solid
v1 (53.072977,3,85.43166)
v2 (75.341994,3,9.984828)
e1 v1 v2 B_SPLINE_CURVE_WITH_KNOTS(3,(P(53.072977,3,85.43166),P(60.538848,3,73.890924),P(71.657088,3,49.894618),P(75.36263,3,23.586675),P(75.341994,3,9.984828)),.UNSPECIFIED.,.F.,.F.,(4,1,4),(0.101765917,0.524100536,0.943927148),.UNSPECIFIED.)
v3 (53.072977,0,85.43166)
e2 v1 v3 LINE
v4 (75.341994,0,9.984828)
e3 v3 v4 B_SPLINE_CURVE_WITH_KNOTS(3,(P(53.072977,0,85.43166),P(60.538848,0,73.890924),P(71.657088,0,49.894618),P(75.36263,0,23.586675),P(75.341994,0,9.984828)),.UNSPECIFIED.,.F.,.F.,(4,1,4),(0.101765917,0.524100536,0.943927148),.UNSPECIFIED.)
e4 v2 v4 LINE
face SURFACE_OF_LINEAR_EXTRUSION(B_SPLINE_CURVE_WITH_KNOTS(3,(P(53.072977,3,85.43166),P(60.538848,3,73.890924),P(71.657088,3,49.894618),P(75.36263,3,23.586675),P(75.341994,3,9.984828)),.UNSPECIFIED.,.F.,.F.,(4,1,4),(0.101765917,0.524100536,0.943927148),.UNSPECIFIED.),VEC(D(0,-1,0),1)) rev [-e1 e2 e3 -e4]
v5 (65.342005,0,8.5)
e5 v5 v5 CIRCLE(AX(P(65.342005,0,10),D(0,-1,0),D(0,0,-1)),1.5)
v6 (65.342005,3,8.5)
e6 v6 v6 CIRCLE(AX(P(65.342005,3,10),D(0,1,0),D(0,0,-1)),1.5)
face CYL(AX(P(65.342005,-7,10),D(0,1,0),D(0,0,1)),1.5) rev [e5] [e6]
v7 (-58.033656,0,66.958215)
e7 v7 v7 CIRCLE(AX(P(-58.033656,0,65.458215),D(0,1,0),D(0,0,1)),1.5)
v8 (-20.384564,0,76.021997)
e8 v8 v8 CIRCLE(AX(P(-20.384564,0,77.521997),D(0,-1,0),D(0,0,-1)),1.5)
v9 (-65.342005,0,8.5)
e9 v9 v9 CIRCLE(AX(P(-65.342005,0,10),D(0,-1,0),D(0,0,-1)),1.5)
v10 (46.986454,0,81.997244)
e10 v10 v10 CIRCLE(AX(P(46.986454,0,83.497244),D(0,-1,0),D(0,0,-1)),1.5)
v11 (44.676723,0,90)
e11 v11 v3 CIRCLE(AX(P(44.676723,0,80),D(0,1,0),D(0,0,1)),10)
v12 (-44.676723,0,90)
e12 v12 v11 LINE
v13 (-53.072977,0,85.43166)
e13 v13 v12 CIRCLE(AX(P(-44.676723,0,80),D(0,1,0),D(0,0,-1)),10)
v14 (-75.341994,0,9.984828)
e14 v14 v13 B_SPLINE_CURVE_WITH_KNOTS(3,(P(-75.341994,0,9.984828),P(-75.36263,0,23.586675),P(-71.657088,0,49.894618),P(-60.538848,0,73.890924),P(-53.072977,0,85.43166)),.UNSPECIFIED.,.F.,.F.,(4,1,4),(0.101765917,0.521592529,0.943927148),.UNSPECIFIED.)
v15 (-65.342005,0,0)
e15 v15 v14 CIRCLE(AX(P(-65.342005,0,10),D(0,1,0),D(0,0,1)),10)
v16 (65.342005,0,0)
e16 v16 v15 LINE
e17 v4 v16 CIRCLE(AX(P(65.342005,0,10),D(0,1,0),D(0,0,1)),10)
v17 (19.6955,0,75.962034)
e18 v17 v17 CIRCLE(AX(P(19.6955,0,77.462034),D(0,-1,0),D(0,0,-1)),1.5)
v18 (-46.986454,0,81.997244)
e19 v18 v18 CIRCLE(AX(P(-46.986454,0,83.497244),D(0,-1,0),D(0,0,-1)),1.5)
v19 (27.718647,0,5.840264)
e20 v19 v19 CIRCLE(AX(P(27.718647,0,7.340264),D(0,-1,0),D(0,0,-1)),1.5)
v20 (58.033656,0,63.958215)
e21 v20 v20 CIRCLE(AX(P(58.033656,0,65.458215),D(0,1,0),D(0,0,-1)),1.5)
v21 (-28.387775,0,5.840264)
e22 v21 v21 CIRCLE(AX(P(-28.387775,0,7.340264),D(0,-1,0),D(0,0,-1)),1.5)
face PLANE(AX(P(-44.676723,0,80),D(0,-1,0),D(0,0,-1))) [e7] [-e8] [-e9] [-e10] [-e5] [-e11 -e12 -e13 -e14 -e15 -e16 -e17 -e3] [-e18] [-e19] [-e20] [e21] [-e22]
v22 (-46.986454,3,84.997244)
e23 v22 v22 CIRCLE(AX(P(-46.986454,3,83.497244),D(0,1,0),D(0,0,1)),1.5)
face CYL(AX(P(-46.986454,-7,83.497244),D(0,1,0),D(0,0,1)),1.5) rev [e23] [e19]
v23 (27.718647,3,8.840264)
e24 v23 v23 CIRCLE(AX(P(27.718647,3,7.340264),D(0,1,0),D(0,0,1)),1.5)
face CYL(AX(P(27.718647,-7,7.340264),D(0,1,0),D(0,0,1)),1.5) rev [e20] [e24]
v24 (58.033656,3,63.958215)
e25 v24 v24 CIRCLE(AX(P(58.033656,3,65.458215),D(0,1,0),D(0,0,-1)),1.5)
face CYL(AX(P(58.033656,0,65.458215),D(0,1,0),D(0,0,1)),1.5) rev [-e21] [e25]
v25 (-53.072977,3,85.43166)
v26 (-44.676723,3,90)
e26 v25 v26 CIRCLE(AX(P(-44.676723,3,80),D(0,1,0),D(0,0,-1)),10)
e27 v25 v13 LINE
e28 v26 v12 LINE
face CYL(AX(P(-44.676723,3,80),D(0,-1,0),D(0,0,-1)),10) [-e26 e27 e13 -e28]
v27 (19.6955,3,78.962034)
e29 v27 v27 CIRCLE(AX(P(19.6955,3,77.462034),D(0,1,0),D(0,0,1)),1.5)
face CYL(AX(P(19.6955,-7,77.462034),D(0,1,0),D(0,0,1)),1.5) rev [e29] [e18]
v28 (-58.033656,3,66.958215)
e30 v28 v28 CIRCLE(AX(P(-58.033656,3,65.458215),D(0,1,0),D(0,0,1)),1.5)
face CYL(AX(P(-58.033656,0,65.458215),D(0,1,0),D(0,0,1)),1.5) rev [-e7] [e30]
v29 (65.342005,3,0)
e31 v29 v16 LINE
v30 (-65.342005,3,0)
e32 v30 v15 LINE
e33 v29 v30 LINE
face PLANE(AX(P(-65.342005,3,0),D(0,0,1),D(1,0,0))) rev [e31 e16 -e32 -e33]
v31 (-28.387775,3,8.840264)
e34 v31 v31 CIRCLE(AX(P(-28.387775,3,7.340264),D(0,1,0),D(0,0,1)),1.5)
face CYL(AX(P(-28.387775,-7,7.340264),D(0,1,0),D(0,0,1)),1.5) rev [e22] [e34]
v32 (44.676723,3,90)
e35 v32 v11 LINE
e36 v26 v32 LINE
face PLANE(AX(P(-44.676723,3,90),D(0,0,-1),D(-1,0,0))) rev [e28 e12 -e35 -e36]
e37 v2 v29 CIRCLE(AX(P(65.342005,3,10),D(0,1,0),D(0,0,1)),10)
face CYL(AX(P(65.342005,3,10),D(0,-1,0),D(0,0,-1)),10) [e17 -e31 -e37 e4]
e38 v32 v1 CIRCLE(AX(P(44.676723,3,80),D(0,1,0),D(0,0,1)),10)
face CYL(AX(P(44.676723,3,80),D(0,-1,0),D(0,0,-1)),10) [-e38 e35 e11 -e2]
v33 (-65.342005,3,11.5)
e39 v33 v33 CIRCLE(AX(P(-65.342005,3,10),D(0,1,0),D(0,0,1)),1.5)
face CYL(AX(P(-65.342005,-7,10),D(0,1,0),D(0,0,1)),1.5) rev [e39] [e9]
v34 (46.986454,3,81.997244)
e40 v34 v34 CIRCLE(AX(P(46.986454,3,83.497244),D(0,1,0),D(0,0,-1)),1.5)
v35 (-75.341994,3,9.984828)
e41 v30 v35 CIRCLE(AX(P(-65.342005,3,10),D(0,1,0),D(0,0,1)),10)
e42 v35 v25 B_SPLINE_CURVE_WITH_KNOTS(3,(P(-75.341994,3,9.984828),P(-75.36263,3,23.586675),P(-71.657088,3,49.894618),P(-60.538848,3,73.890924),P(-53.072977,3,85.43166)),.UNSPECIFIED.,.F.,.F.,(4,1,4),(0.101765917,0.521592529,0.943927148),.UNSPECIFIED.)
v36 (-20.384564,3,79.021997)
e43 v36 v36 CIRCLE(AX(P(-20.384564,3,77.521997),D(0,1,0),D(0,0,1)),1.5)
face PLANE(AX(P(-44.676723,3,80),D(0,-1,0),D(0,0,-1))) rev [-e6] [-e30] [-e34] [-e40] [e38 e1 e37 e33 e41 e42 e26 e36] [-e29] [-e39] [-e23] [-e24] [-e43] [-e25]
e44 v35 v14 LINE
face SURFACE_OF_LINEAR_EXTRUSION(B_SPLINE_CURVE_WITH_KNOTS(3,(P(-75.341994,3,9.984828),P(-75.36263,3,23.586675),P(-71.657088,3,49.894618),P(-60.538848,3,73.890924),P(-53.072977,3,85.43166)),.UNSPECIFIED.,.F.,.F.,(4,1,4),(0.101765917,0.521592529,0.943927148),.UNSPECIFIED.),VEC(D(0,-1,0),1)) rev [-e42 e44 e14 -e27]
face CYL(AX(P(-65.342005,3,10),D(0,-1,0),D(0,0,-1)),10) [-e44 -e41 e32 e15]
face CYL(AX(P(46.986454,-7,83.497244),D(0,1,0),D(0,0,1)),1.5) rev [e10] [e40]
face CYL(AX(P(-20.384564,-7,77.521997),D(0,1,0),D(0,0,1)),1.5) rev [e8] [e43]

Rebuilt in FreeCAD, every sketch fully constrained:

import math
import FreeCAD as App
import Part
import Sketcher

doc = App.newDocument("Part")
params = doc.addObject("Spreadsheet::Sheet", "Params")
for row, (alias, value) in enumerate([
    ("sketch1_radius", "10 mm"),
    ("pad1_length", "3 mm"),
    ("sketch2_diameter", "3 mm"),
    ("pocket1_length", "10 mm"),
    ("sketch3_diameter", "3 mm"),
    ("pocket2_length", "10 mm"),
    ("sketch4_diameter", "3 mm"),
    ("pocket3_length", "3 mm"),
], start=1):
    params.set(f"A{row}", alias)
    params.set(f"B{row}", "=" + value)
    params.setAlias(f"B{row}", alias)

body = doc.addObject("PartDesign::Body", "Body")

# Sketch on XZ plane
sketch1 = body.newObject("Sketcher::SketchObject", "Sketch")
sketch1.AttachmentSupport = (doc.getObject("XZ_Plane"), [""])
sketch1.MapMode = "FlatFace"
sketch1.addGeometry(Part.LineSegment(App.Vector(65.342005, 0, 0), App.Vector(-65.342005, 0, 0)), False)
sketch1.addGeometry(Part.ArcOfCircle(Part.Circle(App.Vector(-65.342005, 10, 0), App.Vector(0, 0, 1), 10), math.radians(-179.913073), math.radians(-90)), False)
sketch1.addGeometry(Part.BSplineCurve([App.Vector(-75.341994, 9.984828, 0), App.Vector(-75.36263, 23.586675, 0), App.Vector(-71.657088, 49.894618, 0), App.Vector(-60.538848, 73.890924, 0), App.Vector(-53.072977, 85.43166, 0)], [4, 1, 4], [0.101765917, 0.521592529, 0.943927148], False, 3, [1, 1, 1, 1, 1], False), False)
sketch1.addGeometry(Part.ArcOfCircle(Part.Circle(App.Vector(-44.676723, 80, 0), App.Vector(0, 0, 1), 10), math.radians(90), math.radians(147.100579)), False)
sketch1.addGeometry(Part.LineSegment(App.Vector(-44.676723, 90, 0), App.Vector(44.676723, 90, 0)), False)
sketch1.addGeometry(Part.ArcOfCircle(Part.Circle(App.Vector(44.676723, 80, 0), App.Vector(0, 0, 1), 10), math.radians(32.899421), math.radians(90)), False)
sketch1.addGeometry(Part.BSplineCurve([App.Vector(75.341994, 9.984828, 0), App.Vector(75.36263, 23.586675, 0), App.Vector(71.657088, 49.894618, 0), App.Vector(60.538848, 73.890924, 0), App.Vector(53.072977, 85.43166, 0)], [4, 1, 4], [0.101765917, 0.521592529, 0.943927148], False, 3, [1, 1, 1, 1, 1], False), False)
sketch1.addGeometry(Part.ArcOfCircle(Part.Circle(App.Vector(65.342005, 10, 0), App.Vector(0, 0, 1), 10), math.radians(-90), math.radians(-0.086927)), False)
sketch1.addConstraint(Sketcher.Constraint("Block", 2))
sketch1.addConstraint(Sketcher.Constraint("Block", 6))
sketch1.addConstraint(Sketcher.Constraint("Tangent", 0, 2, 1, 2))
sketch1.addConstraint(Sketcher.Constraint("Coincident", 1, 1, 2, 1))
sketch1.addConstraint(Sketcher.Constraint("Coincident", 2, 2, 3, 2))
sketch1.addConstraint(Sketcher.Constraint("Tangent", 3, 1, 4, 1))
sketch1.addConstraint(Sketcher.Constraint("Tangent", 4, 2, 5, 2))
sketch1.addConstraint(Sketcher.Constraint("Coincident", 5, 1, 6, 2))
sketch1.addConstraint(Sketcher.Constraint("Coincident", 6, 1, 7, 2))
sketch1.addConstraint(Sketcher.Constraint("Tangent", 7, 1, 0, 1))
sketch1.addConstraint(Sketcher.Constraint("Horizontal", 0))
sketch1.addConstraint(Sketcher.Constraint("Horizontal", 4))
sketch1.addConstraint(Sketcher.Constraint("Equal", 1, 3))
sketch1.addConstraint(Sketcher.Constraint("Equal", 3, 5))
sketch1.addConstraint(Sketcher.Constraint("Equal", 5, 7))
sketch1.addConstraint(Sketcher.Constraint("PointOnObject", 0, 2, -1))
sketch1.addConstraint(Sketcher.Constraint("Radius", 1, 10.0))
sketch1.addConstraint(Sketcher.Constraint("DistanceY", -1, 1, 3, 3, 80.0))
sketch1.setExpression("Constraints[16]", "Params.sketch1_radius")
pad1 = body.newObject("PartDesign::Pad", "Pad")
pad1.Profile = sketch1
pad1.setExpression("Length", "Params.pad1_length")
pad1.Reversed = True

# Sketch on XZ plane
sketch2 = body.newObject("Sketcher::SketchObject", "Sketch001")
sketch2.AttachmentSupport = (doc.getObject("XZ_Plane"), [""])
sketch2.MapMode = "FlatFace"
sketch2.AttachmentOffset = App.Placement(App.Vector(0, 0, -3), App.Rotation())
sketch2.addGeometry(Part.Circle(App.Vector(-65.342005, 10, 0), App.Vector(0, 0, 1), 1.5), False)
sketch2.addGeometry(Part.Circle(App.Vector(-46.986454, 83.497244, 0), App.Vector(0, 0, 1), 1.5), False)
sketch2.addGeometry(Part.Circle(App.Vector(46.986454, 83.497244, 0), App.Vector(0, 0, 1), 1.5), False)
sketch2.addGeometry(Part.Circle(App.Vector(65.342005, 10, 0), App.Vector(0, 0, 1), 1.5), False)
sketch2.addConstraint(Sketcher.Constraint("Equal", 0, 1))
sketch2.addConstraint(Sketcher.Constraint("Equal", 1, 2))
sketch2.addConstraint(Sketcher.Constraint("Equal", 2, 3))
sketch2.addConstraint(Sketcher.Constraint("Symmetric", 1, 3, 2, 3, -2))
sketch2.addConstraint(Sketcher.Constraint("Symmetric", 0, 3, 3, 3, -2))
sketch2.addConstraint(Sketcher.Constraint("Diameter", 0, 3.0))
sketch2.addConstraint(Sketcher.Constraint("DistanceY", -1, 1, 0, 3, 10.0))
sketch2.addConstraint(Sketcher.Constraint("DistanceX", 0, 3, 1, 3, 18.355551))
sketch2.addConstraint(Sketcher.Constraint("DistanceX", 0, 3, 2, 3, 112.328459))
sketch2.addConstraint(Sketcher.Constraint("DistanceY", -1, 1, 1, 3, 83.497244))
sketch2.setExpression("Constraints[5]", "Params.sketch2_diameter")
pocket1 = body.newObject("PartDesign::Pocket", "Pocket")
pocket1.Profile = sketch2
pocket1.setExpression("Length", "Params.pocket1_length")
pocket1.Reversed = True

# Sketch on XZ plane
sketch3 = body.newObject("Sketcher::SketchObject", "Sketch002")
sketch3.AttachmentSupport = (doc.getObject("XZ_Plane"), [""])
sketch3.MapMode = "FlatFace"
sketch3.AttachmentOffset = App.Placement(App.Vector(0, 0, -3), App.Rotation())
sketch3.addGeometry(Part.Circle(App.Vector(-28.387775, 7.340264, 0), App.Vector(0, 0, 1), 1.5), False)
sketch3.addGeometry(Part.Circle(App.Vector(27.718647, 7.340264, 0), App.Vector(0, 0, 1), 1.5), False)
sketch3.addGeometry(Part.Circle(App.Vector(19.6955, 77.462034, 0), App.Vector(0, 0, 1), 1.5), False)
sketch3.addGeometry(Part.Circle(App.Vector(-20.384564, 77.521997, 0), App.Vector(0, 0, 1), 1.5), False)
sketch3.addConstraint(Sketcher.Constraint("Equal", 0, 1))
sketch3.addConstraint(Sketcher.Constraint("Equal", 1, 2))
sketch3.addConstraint(Sketcher.Constraint("Equal", 2, 3))
sketch3.addConstraint(Sketcher.Constraint("Horizontal", 0, 3, 1, 3))
sketch3.addConstraint(Sketcher.Constraint("Diameter", 0, 3.0))
sketch3.addConstraint(Sketcher.Constraint("DistanceX", -1, 1, 2, 3, 19.6955))
sketch3.addConstraint(Sketcher.Constraint("DistanceX", 0, 3, 1, 3, 56.106421))
sketch3.addConstraint(Sketcher.Constraint("DistanceY", 1, 3, 2, 3, 70.12177))
sketch3.addConstraint(Sketcher.Constraint("DistanceX", 0, 3, 3, 3, 8.003211))
sketch3.addConstraint(Sketcher.Constraint("DistanceX", 0, 3, -1, 1, 28.387775))
sketch3.addConstraint(Sketcher.Constraint("DistanceY", -1, 1, 0, 3, 7.340264))
sketch3.addConstraint(Sketcher.Constraint("DistanceY", -1, 1, 3, 3, 77.521997))
sketch3.setExpression("Constraints[4]", "Params.sketch3_diameter")
pocket2 = body.newObject("PartDesign::Pocket", "Pocket001")
pocket2.Profile = sketch3
pocket2.setExpression("Length", "Params.pocket2_length")
pocket2.Reversed = True

# Sketch on XZ plane
sketch4 = body.newObject("Sketcher::SketchObject", "Sketch003")
sketch4.AttachmentSupport = (doc.getObject("XZ_Plane"), [""])
sketch4.MapMode = "FlatFace"
sketch4.AttachmentOffset = App.Placement(App.Vector(0, 0, -3), App.Rotation())
sketch4.addGeometry(Part.Circle(App.Vector(-58.033656, 65.458215, 0), App.Vector(0, 0, 1), 1.5), False)
sketch4.addGeometry(Part.Circle(App.Vector(58.033656, 65.458215, 0), App.Vector(0, 0, 1), 1.5), False)
sketch4.addConstraint(Sketcher.Constraint("Equal", 0, 1))
sketch4.addConstraint(Sketcher.Constraint("Symmetric", 0, 3, 1, 3, -2))
sketch4.addConstraint(Sketcher.Constraint("Diameter", 0, 3.0))
sketch4.addConstraint(Sketcher.Constraint("DistanceX", 0, 3, 1, 3, 116.067312))
sketch4.addConstraint(Sketcher.Constraint("DistanceY", -1, 1, 0, 3, 65.458215))
sketch4.setExpression("Constraints[2]", "Params.sketch4_diameter")
pocket3 = body.newObject("PartDesign::Pocket", "Pocket002")
pocket3.Profile = sketch4
pocket3.setExpression("Length", "Params.pocket3_length")
pocket3.Reversed = True

doc.recompute()
